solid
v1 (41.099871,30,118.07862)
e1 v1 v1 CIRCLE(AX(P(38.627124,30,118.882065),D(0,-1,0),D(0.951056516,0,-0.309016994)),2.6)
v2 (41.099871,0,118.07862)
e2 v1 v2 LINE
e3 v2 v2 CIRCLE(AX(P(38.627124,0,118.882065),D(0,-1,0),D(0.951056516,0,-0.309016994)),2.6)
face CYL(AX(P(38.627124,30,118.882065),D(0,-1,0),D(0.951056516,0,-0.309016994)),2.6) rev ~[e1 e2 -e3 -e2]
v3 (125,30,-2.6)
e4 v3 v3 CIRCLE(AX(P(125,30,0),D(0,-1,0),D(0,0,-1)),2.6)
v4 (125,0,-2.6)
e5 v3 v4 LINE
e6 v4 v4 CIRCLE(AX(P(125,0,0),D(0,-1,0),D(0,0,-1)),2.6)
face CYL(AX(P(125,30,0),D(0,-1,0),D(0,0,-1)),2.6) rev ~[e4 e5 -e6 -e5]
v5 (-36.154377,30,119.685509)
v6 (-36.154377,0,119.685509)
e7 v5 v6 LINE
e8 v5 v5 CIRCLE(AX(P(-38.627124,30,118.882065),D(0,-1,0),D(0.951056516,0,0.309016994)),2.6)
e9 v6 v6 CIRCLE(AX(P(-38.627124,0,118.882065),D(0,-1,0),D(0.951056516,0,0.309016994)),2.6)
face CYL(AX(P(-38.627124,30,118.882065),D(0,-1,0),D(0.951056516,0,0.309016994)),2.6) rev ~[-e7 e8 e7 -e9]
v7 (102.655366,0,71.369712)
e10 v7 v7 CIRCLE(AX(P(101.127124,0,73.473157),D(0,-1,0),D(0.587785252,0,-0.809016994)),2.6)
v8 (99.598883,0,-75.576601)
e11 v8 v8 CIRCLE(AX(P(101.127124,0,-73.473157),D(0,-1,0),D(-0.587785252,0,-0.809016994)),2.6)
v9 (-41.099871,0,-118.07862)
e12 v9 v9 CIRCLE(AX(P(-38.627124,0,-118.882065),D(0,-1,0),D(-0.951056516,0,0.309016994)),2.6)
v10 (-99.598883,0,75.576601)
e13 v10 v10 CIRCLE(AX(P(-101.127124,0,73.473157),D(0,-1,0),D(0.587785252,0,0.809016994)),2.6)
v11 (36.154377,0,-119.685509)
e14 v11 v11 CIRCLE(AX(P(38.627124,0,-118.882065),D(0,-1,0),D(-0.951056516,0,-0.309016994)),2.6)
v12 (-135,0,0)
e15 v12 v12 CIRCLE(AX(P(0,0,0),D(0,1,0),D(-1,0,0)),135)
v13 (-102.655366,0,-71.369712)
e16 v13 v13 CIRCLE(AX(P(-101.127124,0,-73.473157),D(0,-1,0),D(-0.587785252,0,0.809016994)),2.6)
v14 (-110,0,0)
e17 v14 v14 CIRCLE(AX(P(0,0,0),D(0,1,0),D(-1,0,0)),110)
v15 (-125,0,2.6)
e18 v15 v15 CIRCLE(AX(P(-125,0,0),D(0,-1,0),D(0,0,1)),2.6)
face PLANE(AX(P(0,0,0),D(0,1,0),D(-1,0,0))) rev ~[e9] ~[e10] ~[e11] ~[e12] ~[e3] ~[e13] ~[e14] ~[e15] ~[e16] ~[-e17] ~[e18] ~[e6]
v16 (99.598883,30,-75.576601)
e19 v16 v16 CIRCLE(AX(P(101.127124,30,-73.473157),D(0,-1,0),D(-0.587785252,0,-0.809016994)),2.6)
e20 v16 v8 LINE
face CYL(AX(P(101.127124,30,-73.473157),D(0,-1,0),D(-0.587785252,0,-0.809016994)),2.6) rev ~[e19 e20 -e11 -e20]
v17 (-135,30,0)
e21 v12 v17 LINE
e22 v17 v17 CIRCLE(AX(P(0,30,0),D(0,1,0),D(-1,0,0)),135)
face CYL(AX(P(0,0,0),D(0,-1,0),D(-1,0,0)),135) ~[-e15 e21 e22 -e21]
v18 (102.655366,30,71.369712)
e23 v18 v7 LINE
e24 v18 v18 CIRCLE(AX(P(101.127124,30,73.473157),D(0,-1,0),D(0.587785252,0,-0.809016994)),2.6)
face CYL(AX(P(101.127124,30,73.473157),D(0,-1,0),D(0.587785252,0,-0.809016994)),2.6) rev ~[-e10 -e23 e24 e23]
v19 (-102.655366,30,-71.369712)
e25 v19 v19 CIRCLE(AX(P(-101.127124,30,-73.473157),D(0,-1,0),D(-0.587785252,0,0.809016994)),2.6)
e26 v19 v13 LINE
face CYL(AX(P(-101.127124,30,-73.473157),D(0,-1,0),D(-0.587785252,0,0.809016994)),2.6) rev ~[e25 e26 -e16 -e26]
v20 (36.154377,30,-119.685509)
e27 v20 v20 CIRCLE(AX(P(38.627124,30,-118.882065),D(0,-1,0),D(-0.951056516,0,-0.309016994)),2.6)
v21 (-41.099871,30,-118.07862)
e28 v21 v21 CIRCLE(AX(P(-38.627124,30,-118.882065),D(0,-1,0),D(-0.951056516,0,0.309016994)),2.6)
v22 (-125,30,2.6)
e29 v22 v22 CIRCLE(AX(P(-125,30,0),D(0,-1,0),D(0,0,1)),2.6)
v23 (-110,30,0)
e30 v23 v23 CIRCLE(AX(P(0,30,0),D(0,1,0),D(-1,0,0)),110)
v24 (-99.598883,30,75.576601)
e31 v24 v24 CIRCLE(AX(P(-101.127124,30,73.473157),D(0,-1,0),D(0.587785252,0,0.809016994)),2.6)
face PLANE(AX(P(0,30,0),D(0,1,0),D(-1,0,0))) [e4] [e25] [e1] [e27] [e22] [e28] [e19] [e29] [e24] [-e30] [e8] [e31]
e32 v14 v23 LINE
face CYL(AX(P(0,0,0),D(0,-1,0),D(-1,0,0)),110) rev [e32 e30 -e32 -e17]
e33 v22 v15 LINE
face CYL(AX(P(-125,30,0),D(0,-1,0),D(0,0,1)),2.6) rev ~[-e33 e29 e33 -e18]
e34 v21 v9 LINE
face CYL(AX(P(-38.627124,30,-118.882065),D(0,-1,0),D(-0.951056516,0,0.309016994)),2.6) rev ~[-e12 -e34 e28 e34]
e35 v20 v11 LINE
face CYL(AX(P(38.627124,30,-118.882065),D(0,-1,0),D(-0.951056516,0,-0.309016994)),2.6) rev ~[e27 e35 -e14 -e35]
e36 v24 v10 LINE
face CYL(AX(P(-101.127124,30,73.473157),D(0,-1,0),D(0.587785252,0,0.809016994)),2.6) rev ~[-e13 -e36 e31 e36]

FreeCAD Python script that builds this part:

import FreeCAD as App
import Part
import Sketcher

V = App.Vector

doc = App.newDocument("Part")
body = doc.addObject("PartDesign::Body", "Body")

# Sketch on XZ plane
sketch1 = body.newObject("Sketcher::SketchObject", "Sketch")
sketch1.AttachmentSupport = (doc.getObject("XZ_Plane"), [""])
sketch1.MapMode = "FlatFace"
sketch1.addGeometry([
    Part.Circle(V(0, 0, 0), V(0, 0, 1), 135),
    Part.Circle(V(0, 0, 0), V(0, 0, 1), 110),
], False)
sketch1.addConstraint([
    Sketcher.Constraint("Coincident", 0, 3, -1, 1),
    Sketcher.Constraint("Coincident", 1, 3, -1, 1),
    Sketcher.Constraint("Diameter", 0, 270.0),
    Sketcher.Constraint("Diameter", 1, 220.0),
])
pad1 = body.newObject("PartDesign::Pad", "Pad")
pad1.Profile = sketch1
pad1.Length = 30
pad1.Reversed = True

# Sketch on XZ plane
sketch2 = body.newObject("Sketcher::SketchObject", "Sketch001")
sketch2.AttachmentSupport = (doc.getObject("XZ_Plane"), [""])
sketch2.MapMode = "FlatFace"
sketch2.AttachmentOffset = App.Placement(V(0, 0, -30), App.Rotation())
sketch2.addGeometry(Part.Circle(V(-125, 0, 0), V(0, 0, 1), 2.6), False)
sketch2.addConstraint([
    Sketcher.Constraint("PointOnObject", 0, 3, -1),
    Sketcher.Constraint("Diameter", 0, 5.2),
    Sketcher.Constraint("DistanceX", 0, 3, -1, 1, 125.0),
])
doc.recompute()
hole = body.newObject("PartDesign::Hole", "Hole")
hole.Profile = sketch2
hole.ThreadType = "None"
hole.Diameter = 5.2
hole.DepthType = "ThroughAll"
hole.Reversed = True
doc.recompute()

polarpattern = body.newObject("PartDesign::PolarPattern", "PolarPattern")
polarpattern.Originals = [hole]
polarpattern.Axis = (doc.getObject("Y_Axis"), [""])
polarpattern.Angle = 360
polarpattern.Occurrences = 10
body.Tip = polarpattern

doc.recompute()
